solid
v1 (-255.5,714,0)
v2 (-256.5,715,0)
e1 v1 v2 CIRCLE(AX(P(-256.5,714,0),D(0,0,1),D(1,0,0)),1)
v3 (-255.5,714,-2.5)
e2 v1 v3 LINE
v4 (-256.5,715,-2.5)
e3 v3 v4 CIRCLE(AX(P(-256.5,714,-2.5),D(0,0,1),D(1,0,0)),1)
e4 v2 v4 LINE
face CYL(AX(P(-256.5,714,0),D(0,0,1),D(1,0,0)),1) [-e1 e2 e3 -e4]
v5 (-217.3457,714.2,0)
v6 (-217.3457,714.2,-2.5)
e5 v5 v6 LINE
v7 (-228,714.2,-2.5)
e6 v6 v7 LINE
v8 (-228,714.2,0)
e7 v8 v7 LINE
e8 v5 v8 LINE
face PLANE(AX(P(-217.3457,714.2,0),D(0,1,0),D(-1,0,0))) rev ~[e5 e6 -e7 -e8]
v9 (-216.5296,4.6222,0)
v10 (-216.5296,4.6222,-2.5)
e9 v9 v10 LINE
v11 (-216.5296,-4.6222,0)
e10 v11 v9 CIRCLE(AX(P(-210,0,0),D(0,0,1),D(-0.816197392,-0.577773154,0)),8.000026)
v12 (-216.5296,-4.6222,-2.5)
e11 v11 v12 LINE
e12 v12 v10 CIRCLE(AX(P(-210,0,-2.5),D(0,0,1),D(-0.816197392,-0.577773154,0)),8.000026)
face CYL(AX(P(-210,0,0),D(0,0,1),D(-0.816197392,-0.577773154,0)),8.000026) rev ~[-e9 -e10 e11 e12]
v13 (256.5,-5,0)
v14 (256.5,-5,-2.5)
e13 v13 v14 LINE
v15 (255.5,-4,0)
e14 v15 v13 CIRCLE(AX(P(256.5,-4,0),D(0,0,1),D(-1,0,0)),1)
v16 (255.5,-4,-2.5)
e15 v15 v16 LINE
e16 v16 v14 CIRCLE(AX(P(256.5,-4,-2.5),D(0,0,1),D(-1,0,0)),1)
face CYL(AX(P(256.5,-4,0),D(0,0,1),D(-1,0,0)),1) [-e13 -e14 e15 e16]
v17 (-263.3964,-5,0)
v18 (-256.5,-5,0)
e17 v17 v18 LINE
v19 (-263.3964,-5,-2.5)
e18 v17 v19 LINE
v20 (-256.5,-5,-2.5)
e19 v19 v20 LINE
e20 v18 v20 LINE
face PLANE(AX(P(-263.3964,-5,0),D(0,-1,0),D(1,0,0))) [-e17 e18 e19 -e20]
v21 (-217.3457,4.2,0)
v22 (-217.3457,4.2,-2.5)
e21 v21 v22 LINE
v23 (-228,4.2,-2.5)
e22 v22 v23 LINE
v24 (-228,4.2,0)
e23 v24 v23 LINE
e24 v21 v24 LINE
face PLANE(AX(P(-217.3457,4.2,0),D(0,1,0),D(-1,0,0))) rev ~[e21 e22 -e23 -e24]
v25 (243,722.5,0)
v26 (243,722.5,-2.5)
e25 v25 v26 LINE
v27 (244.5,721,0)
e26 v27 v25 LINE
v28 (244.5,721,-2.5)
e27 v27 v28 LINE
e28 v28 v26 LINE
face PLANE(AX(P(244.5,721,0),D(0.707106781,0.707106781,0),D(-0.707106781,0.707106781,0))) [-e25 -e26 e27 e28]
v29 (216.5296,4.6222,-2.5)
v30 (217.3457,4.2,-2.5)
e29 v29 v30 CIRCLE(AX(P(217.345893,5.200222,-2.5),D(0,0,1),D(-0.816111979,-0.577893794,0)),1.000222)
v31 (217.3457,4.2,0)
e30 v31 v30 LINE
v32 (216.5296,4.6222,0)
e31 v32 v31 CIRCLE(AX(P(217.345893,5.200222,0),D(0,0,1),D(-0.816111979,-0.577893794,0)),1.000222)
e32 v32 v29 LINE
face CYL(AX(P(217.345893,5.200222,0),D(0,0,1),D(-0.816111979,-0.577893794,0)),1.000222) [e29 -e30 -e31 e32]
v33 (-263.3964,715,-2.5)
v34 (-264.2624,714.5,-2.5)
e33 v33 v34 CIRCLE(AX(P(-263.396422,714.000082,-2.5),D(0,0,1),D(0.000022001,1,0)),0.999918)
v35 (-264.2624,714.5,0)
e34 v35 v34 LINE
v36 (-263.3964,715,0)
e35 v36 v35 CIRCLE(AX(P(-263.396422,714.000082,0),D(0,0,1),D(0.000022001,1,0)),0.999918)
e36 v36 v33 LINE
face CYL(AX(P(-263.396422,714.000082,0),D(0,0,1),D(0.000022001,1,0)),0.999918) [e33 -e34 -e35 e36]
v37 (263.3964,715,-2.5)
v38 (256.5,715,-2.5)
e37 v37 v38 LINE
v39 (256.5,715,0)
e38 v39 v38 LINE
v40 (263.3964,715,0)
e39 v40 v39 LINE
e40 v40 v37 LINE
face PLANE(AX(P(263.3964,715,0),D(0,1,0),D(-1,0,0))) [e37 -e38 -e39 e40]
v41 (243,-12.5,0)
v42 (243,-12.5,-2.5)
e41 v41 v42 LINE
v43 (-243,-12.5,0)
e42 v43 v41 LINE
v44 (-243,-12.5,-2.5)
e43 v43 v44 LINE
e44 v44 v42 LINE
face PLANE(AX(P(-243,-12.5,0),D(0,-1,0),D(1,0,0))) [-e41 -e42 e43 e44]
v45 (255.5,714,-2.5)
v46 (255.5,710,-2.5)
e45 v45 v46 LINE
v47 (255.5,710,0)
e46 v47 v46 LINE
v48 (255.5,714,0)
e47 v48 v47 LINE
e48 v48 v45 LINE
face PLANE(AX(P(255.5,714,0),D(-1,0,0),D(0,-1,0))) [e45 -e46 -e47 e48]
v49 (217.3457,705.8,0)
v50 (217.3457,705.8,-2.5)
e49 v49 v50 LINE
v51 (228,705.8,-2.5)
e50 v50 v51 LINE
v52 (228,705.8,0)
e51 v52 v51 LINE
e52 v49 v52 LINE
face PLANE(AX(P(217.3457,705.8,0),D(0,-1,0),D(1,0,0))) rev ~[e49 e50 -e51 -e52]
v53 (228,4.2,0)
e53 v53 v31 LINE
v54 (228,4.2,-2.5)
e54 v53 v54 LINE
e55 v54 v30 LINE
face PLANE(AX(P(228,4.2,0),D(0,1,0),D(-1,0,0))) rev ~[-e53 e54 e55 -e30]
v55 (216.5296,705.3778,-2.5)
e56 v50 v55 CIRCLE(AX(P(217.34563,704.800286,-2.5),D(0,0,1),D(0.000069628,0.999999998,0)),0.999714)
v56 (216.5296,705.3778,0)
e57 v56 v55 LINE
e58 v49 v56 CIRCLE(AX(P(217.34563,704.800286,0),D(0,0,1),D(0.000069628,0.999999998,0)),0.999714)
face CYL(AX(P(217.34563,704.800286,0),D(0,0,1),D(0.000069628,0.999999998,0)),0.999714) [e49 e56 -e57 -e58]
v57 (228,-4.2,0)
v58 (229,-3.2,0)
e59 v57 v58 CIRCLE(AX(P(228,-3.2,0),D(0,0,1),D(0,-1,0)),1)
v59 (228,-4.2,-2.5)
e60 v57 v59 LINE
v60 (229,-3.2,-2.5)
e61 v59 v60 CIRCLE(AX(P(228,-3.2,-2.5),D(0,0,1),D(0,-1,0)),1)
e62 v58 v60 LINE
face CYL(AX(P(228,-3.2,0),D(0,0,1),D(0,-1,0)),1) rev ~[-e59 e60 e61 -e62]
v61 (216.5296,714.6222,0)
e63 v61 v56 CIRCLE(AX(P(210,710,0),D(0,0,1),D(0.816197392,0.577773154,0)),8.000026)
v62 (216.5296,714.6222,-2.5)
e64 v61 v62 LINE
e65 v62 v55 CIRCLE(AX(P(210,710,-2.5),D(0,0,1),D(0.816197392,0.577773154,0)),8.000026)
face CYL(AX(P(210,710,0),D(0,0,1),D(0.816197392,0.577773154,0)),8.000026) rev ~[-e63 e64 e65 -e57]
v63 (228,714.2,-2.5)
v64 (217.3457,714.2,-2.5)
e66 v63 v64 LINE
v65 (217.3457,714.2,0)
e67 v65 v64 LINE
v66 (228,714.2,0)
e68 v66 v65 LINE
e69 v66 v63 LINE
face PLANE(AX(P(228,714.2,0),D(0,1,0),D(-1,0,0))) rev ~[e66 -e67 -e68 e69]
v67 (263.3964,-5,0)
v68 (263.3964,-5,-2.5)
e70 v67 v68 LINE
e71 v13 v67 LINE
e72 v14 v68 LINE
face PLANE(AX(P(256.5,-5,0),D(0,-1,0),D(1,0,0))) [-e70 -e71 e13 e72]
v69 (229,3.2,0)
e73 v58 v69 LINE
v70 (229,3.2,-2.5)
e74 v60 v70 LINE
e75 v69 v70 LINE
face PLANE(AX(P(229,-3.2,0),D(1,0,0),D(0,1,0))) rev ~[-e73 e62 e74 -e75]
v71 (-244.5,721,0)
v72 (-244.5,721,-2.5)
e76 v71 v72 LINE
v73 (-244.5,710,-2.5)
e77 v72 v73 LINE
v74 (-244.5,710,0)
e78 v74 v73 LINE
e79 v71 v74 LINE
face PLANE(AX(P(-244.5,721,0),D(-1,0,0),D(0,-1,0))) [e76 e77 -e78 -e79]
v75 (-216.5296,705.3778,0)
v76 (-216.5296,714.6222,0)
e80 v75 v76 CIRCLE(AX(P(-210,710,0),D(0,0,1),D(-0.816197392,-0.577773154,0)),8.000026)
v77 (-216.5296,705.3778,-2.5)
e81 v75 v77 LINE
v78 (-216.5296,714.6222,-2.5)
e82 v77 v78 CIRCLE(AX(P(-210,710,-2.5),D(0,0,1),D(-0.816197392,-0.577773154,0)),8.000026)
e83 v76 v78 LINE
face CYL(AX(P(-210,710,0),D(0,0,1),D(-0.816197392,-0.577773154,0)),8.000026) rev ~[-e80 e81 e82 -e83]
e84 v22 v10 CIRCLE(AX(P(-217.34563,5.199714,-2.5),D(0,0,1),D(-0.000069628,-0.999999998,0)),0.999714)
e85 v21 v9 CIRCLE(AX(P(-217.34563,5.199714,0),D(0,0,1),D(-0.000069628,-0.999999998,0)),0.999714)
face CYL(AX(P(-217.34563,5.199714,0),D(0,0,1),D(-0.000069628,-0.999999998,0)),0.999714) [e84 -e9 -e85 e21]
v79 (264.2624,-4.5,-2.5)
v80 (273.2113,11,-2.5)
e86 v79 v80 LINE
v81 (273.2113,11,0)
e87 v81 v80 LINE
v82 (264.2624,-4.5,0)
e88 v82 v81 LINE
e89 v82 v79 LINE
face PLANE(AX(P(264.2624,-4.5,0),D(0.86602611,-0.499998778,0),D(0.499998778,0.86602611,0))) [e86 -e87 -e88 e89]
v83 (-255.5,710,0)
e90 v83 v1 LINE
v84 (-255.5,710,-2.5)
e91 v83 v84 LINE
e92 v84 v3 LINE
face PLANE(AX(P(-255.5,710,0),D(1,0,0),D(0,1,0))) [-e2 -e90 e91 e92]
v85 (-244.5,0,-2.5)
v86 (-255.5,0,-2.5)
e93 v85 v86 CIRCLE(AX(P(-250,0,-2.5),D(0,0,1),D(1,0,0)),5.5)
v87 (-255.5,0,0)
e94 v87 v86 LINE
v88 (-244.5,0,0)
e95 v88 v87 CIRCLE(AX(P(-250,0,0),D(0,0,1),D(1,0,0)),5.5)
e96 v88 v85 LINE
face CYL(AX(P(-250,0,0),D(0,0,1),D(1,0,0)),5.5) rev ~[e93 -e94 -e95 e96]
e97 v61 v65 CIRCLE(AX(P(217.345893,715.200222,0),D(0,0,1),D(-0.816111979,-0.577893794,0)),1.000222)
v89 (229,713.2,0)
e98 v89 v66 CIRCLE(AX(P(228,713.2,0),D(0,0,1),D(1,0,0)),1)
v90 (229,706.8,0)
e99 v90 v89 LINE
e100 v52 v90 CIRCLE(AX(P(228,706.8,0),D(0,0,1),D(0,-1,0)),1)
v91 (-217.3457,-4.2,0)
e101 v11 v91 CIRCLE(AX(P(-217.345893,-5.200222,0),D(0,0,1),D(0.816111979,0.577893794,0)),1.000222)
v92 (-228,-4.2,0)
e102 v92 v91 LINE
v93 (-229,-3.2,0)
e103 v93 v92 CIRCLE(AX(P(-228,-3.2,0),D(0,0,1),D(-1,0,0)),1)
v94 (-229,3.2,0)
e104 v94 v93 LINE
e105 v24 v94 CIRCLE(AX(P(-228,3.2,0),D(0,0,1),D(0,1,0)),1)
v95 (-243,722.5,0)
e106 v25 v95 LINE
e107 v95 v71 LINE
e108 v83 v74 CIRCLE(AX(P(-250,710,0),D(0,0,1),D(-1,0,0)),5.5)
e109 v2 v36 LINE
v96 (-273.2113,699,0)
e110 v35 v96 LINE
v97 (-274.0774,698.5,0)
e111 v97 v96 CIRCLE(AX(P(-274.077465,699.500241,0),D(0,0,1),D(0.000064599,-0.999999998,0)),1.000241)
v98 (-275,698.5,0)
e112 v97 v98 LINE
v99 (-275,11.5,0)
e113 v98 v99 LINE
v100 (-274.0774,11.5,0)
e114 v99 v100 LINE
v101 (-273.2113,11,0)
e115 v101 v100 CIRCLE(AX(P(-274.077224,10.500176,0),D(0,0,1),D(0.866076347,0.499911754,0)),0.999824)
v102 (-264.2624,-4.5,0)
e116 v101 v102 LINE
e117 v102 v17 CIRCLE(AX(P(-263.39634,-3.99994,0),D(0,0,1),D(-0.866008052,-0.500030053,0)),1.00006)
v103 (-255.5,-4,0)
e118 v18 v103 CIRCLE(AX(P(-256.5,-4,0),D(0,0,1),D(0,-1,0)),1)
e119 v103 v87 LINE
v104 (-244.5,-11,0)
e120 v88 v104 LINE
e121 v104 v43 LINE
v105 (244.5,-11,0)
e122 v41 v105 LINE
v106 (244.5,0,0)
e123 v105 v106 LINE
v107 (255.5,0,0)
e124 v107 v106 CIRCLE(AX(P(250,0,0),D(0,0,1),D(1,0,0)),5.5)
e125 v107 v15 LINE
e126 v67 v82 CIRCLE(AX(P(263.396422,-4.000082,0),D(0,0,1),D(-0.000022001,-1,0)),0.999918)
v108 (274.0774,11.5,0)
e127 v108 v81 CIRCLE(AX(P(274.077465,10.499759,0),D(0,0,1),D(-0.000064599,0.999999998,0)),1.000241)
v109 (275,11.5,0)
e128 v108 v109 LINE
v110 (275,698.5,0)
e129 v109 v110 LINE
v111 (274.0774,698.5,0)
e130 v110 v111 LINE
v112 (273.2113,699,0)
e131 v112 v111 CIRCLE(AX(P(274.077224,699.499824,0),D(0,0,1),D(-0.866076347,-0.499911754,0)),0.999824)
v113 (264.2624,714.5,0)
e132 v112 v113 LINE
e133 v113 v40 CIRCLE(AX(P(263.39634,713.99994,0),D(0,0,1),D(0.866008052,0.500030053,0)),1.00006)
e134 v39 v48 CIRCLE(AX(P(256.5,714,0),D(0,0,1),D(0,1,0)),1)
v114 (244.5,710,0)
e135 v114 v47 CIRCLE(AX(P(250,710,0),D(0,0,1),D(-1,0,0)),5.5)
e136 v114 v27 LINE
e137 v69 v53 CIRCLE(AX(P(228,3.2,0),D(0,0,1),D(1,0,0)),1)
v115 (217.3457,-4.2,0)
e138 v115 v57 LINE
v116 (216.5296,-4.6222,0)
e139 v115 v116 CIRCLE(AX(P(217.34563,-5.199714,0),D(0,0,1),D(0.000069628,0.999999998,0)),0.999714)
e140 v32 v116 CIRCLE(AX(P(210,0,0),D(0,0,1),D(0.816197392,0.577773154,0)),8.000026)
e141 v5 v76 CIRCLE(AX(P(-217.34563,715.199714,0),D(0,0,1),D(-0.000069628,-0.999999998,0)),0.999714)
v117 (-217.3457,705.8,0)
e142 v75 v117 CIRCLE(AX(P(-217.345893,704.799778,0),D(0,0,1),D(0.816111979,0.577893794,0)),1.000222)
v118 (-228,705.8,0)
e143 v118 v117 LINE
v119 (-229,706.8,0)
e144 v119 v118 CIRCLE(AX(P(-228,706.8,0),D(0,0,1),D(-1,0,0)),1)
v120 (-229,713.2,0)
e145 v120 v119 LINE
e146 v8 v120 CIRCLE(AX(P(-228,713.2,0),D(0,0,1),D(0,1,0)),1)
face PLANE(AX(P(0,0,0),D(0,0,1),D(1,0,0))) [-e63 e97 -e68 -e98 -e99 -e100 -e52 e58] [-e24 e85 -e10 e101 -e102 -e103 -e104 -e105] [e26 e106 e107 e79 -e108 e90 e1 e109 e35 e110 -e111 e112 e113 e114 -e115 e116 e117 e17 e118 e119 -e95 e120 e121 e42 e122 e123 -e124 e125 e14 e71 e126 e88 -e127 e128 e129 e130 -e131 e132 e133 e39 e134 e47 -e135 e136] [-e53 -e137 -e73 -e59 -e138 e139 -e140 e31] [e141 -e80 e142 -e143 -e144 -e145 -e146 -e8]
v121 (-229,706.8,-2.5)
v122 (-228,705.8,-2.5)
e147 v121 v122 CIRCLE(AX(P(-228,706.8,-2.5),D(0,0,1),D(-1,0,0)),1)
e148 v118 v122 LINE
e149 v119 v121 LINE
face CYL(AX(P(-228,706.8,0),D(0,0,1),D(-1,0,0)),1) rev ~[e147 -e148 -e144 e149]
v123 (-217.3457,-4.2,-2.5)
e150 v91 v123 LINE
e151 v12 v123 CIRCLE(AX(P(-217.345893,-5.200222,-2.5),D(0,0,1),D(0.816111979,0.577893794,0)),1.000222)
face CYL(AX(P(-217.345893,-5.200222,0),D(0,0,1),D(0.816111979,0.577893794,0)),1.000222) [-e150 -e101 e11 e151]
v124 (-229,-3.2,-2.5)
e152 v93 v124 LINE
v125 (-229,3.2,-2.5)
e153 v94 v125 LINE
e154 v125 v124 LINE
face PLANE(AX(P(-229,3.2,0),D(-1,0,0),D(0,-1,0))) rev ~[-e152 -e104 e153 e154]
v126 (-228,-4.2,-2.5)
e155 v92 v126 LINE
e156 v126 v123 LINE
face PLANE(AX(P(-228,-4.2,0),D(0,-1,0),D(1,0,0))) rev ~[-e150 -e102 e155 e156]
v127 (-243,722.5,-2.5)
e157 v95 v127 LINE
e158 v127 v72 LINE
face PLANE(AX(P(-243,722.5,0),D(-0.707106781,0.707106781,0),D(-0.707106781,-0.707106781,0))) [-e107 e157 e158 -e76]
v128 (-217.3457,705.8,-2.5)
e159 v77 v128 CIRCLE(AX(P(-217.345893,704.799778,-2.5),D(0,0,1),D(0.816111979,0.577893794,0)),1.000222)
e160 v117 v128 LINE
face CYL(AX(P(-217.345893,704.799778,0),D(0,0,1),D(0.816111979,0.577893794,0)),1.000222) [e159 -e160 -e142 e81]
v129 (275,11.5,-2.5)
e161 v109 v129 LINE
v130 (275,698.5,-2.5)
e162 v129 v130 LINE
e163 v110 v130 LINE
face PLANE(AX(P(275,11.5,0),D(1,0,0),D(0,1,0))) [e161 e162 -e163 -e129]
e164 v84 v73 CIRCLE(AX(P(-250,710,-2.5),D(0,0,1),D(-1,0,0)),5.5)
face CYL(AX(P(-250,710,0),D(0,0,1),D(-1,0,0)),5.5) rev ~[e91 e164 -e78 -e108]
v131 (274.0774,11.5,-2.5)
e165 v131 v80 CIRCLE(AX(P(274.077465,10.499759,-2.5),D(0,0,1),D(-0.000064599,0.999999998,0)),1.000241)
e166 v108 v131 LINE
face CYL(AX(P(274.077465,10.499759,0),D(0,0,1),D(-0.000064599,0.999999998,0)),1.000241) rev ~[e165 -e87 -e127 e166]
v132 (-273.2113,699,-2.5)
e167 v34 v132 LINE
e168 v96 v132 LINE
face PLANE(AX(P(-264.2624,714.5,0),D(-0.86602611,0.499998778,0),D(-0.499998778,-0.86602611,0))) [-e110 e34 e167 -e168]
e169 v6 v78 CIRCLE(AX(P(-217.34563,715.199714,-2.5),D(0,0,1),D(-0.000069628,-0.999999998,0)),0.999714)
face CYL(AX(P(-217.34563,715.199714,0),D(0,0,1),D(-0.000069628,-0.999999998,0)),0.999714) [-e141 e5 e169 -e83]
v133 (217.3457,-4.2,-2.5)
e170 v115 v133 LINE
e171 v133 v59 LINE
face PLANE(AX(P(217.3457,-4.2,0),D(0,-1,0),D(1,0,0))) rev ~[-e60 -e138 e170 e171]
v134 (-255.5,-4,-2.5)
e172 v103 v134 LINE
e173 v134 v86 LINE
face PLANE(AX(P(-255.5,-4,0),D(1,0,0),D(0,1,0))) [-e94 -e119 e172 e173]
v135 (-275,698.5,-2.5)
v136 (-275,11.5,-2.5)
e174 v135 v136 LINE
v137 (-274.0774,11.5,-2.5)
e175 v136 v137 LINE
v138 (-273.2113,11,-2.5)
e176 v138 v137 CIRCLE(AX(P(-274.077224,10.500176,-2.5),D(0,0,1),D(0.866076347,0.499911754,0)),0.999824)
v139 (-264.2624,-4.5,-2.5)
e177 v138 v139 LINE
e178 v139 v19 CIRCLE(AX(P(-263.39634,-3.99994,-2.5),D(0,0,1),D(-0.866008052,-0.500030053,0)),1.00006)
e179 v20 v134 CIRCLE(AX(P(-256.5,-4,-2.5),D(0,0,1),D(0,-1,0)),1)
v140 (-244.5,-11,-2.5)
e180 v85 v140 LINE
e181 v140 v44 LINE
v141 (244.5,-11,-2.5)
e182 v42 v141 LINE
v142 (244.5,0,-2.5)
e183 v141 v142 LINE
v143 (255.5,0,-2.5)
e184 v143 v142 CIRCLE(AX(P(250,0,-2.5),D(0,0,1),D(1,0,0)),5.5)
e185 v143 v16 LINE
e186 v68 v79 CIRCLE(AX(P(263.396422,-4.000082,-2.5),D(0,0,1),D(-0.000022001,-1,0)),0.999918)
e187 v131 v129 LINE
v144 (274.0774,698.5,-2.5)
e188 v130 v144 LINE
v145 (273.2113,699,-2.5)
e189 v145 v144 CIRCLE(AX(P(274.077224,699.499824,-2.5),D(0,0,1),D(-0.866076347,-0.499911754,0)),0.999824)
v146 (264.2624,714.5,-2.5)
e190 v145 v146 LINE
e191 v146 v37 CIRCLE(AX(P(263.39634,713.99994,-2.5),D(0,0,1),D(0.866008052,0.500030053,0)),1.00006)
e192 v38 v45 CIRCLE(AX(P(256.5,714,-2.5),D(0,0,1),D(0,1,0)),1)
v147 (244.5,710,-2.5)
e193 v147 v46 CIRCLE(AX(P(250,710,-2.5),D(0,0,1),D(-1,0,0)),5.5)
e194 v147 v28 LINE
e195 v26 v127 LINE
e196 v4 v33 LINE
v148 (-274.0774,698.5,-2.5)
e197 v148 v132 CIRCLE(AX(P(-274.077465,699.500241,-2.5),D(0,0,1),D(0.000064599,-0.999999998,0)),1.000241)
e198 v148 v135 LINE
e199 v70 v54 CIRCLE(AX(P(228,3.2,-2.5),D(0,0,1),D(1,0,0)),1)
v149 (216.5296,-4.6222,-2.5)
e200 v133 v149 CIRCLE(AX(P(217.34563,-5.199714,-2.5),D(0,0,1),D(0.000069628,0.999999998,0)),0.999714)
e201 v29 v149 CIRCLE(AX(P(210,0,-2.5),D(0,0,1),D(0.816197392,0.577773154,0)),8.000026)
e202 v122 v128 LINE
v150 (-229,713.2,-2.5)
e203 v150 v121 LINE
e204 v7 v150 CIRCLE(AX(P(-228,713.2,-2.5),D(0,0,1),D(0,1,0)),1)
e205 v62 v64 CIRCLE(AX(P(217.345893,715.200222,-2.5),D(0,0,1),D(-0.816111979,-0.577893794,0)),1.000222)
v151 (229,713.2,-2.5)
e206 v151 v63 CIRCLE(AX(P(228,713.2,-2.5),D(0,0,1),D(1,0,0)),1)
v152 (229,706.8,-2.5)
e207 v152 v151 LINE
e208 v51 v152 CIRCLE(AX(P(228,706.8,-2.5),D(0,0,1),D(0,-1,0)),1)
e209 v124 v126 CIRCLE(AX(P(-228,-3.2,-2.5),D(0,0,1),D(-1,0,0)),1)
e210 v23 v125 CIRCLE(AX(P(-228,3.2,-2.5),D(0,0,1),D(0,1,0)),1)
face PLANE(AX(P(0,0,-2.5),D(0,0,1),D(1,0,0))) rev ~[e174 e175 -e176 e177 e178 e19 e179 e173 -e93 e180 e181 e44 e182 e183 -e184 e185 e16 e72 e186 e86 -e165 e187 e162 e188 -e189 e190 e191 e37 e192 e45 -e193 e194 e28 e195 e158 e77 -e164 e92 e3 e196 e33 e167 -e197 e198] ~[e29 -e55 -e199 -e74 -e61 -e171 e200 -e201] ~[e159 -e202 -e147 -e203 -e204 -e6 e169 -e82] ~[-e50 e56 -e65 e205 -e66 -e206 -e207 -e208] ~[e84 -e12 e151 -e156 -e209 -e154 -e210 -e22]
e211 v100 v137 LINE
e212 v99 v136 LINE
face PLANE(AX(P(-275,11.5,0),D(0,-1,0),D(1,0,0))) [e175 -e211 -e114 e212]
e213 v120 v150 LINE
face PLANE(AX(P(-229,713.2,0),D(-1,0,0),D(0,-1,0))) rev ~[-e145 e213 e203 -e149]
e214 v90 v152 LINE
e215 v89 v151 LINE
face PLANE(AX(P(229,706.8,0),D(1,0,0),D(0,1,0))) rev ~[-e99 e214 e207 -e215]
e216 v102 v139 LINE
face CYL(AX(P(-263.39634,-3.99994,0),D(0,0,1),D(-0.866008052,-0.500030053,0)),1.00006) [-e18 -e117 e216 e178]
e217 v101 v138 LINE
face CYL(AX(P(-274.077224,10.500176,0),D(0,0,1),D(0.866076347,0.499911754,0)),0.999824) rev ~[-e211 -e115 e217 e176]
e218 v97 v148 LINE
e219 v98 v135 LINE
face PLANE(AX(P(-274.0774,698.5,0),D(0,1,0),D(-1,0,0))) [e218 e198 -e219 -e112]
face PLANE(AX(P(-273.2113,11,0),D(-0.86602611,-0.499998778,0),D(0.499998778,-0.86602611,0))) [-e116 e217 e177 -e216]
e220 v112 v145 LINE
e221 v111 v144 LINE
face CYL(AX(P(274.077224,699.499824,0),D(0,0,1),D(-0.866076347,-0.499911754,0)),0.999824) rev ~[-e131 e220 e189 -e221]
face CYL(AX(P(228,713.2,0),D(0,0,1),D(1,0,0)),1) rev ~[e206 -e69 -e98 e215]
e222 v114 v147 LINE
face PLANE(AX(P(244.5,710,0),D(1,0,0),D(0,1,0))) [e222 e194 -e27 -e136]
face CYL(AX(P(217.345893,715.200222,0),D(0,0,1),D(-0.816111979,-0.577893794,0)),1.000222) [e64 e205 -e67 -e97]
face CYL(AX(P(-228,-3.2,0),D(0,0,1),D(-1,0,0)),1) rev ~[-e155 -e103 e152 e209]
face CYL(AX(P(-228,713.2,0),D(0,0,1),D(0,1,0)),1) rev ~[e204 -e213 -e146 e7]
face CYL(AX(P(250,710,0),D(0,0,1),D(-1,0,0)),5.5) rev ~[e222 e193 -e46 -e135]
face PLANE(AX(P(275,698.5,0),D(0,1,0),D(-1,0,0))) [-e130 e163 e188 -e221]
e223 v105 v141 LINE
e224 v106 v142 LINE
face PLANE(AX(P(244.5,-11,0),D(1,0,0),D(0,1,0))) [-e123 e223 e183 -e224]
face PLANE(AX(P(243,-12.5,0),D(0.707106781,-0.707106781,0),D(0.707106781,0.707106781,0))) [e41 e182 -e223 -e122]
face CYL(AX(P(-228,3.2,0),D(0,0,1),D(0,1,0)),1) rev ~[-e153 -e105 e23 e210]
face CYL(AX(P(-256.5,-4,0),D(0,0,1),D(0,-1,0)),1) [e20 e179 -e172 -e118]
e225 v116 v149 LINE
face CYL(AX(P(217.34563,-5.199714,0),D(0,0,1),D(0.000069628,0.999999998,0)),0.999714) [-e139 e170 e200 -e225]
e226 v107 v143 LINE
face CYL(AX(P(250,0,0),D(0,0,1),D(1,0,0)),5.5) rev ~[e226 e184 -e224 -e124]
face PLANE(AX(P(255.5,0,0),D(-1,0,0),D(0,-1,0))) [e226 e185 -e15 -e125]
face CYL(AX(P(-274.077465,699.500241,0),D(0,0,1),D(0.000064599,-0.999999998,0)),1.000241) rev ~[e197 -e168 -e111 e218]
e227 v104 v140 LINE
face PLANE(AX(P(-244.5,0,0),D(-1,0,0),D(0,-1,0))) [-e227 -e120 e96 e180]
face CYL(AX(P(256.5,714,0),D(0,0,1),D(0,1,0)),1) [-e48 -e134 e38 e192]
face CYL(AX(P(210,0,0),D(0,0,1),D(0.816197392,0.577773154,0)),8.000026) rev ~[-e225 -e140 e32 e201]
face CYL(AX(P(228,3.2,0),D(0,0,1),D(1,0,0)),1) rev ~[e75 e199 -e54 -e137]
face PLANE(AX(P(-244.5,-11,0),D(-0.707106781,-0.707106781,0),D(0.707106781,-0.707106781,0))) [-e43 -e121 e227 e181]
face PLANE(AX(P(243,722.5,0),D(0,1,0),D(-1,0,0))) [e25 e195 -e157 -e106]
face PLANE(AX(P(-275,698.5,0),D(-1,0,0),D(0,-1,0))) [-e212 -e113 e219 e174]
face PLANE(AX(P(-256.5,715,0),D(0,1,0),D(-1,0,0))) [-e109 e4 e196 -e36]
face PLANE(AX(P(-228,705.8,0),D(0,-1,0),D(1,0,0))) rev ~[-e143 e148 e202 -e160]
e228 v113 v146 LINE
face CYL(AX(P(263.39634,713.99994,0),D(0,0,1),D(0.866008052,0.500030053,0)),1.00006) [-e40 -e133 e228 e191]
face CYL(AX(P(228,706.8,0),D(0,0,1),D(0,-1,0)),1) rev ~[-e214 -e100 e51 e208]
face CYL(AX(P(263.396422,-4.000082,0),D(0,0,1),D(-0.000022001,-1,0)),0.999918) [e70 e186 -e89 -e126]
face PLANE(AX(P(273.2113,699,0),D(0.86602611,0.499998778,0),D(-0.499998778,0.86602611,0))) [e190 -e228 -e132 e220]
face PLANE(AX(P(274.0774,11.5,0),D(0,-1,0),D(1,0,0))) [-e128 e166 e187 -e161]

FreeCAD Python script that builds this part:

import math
import FreeCAD as App
import Part
import Sketcher
from FreeCAD import Vector
Q = App.Units.Quantity

doc = App.newDocument("Part")
body = doc.addObject("PartDesign::Body", "Body")

# Sketch on XY plane
sketch1 = body.newObject("Sketcher::SketchObject", "Sketch")
sketch1.AttachmentSupport = (doc.getObject("XY_Plane"), [""])
sketch1.MapMode = "FlatFace"
sketch1.addGeometry(Part.LineSegment(Vector(-274.1, 698.5, 0), Vector(-275, 698.5, 0)), False)
sketch1.addGeometry(Part.LineSegment(Vector(-275, 698.5, 0), Vector(-275, 11.5, 0)), False)
sketch1.addGeometry(Part.LineSegment(Vector(-275, 11.5, 0), Vector(-274.1, 11.5, 0)), False)
sketch1.addGeometry(Part.ArcOfCircle(Part.Circle(Vector(-274.1, 10.5, 0), Vector(0, 0, 1), 1), math.radians(30), math.radians(90)), False)
sketch1.addGeometry(Part.LineSegment(Vector(-273.2, 11, 0), Vector(-264.3, -4.5, 0)), False)
sketch1.addGeometry(Part.ArcOfCircle(Part.Circle(Vector(-263.4, -4, 0), Vector(0, 0, 1), 1), math.radians(-150), math.radians(-90)), False)
sketch1.addGeometry(Part.LineSegment(Vector(-263.4, -5, 0), Vector(-256.5, -5, 0)), False)
sketch1.addGeometry(Part.ArcOfCircle(Part.Circle(Vector(-256.5, -4, 0), Vector(0, 0, 1), 1), math.radians(-90), math.radians(0)), False)
sketch1.addGeometry(Part.LineSegment(Vector(-255.5, -4, 0), Vector(-255.5, 0, 0)), False)
sketch1.addGeometry(Part.ArcOfCircle(Part.Circle(Vector(-250, 0, 0), Vector(0, 0, 1), 5.5), math.radians(0), math.radians(180)), False)
sketch1.addGeometry(Part.LineSegment(Vector(-244.5, 0, 0), Vector(-244.5, -11, 0)), False)
sketch1.addGeometry(Part.LineSegment(Vector(-244.5, -11, 0), Vector(-243, -12.5, 0)), False)
sketch1.addGeometry(Part.LineSegment(Vector(-243, -12.5, 0), Vector(243, -12.5, 0)), False)
sketch1.addGeometry(Part.LineSegment(Vector(243, -12.5, 0), Vector(244.5, -11, 0)), False)
sketch1.addGeometry(Part.LineSegment(Vector(244.5, -11, 0), Vector(244.5, 0, 0)), False)
sketch1.addGeometry(Part.ArcOfCircle(Part.Circle(Vector(250, 0, 0), Vector(0, 0, 1), 5.5), math.radians(0), math.radians(180)), False)
sketch1.addGeometry(Part.LineSegment(Vector(255.5, 0, 0), Vector(255.5, -4, 0)), False)
sketch1.addGeometry(Part.ArcOfCircle(Part.Circle(Vector(256.5, -4, 0), Vector(0, 0, 1), 1), math.radians(180), math.radians(270)), False)
sketch1.addGeometry(Part.LineSegment(Vector(256.5, -5, 0), Vector(263.4, -5, 0)), False)
sketch1.addGeometry(Part.ArcOfCircle(Part.Circle(Vector(263.4, -4, 0), Vector(0, 0, 1), 1), math.radians(-90), math.radians(-30)), False)
sketch1.addGeometry(Part.LineSegment(Vector(264.3, -4.5, 0), Vector(273.2, 11, 0)), False)
sketch1.addGeometry(Part.ArcOfCircle(Part.Circle(Vector(274.1, 10.5, 0), Vector(0, 0, 1), 1), math.radians(90), math.radians(150)), False)
sketch1.addGeometry(Part.LineSegment(Vector(274.1, 11.5, 0), Vector(275, 11.5, 0)), False)
sketch1.addGeometry(Part.LineSegment(Vector(275, 11.5, 0), Vector(275, 698.5, 0)), False)
sketch1.addGeometry(Part.LineSegment(Vector(275, 698.5, 0), Vector(274.1, 698.5, 0)), False)
sketch1.addGeometry(Part.ArcOfCircle(Part.Circle(Vector(274.1, 699.5, 0), Vector(0, 0, 1), 1), math.radians(-150), math.radians(-90)), False)
sketch1.addGeometry(Part.LineSegment(Vector(273.2, 699, 0), Vector(264.3, 714.5, 0)), False)
sketch1.addGeometry(Part.ArcOfCircle(Part.Circle(Vector(263.4, 714, 0), Vector(0, 0, 1), 1), math.radians(30), math.radians(90)), False)
sketch1.addGeometry(Part.LineSegment(Vector(263.4, 715, 0), Vector(256.5, 715, 0)), False)
sketch1.addGeometry(Part.ArcOfCircle(Part.Circle(Vector(256.5, 714, 0), Vector(0, 0, 1), 1), math.radians(90), math.radians(180)), False)
sketch1.addGeometry(Part.LineSegment(Vector(255.5, 714, 0), Vector(255.5, 710, 0)), False)
sketch1.addGeometry(Part.ArcOfCircle(Part.Circle(Vector(250, 710, 0), Vector(0, 0, 1), 5.5), math.radians(180), math.radians(360)), False)
sketch1.addGeometry(Part.LineSegment(Vector(244.5, 710, 0), Vector(244.5, 721, 0)), False)
sketch1.addGeometry(Part.LineSegment(Vector(244.5, 721, 0), Vector(243, 722.5, 0)), False)
sketch1.addGeometry(Part.LineSegment(Vector(243, 722.5, 0), Vector(-243, 722.5, 0)), False)
sketch1.addGeometry(Part.LineSegment(Vector(-243, 722.5, 0), Vector(-244.5, 721, 0)), False)
sketch1.addGeometry(Part.LineSegment(Vector(-244.5, 721, 0), Vector(-244.5, 710, 0)), False)
sketch1.addGeometry(Part.ArcOfCircle(Part.Circle(Vector(-250, 710, 0), Vector(0, 0, 1), 5.5), math.radians(180), math.radians(360)), False)
sketch1.addGeometry(Part.LineSegment(Vector(-255.5, 710, 0), Vector(-255.5, 714, 0)), False)
sketch1.addGeometry(Part.ArcOfCircle(Part.Circle(Vector(-256.5, 714, 0), Vector(0, 0, 1), 1), math.radians(0), math.radians(90)), False)
sketch1.addGeometry(Part.LineSegment(Vector(-256.5, 715, 0), Vector(-263.4, 715, 0)), False)
sketch1.addGeometry(Part.ArcOfCircle(Part.Circle(Vector(-263.4, 714, 0), Vector(0, 0, 1), 1), math.radians(90), math.radians(150)), False)
sketch1.addGeometry(Part.LineSegment(Vector(-264.3, 714.5, 0), Vector(-273.2, 699, 0)), False)
sketch1.addGeometry(Part.ArcOfCircle(Part.Circle(Vector(-274.1, 699.5, 0), Vector(0, 0, 1), 1), math.radians(-90), math.radians(-30)), False)
sketch1.addGeometry(Part.LineSegment(Vector(-229, -3.2, 0), Vector(-229, 3.2, 0)), False)
sketch1.addGeometry(Part.ArcOfCircle(Part.Circle(Vector(-228, 3.2, 0), Vector(0, 0, 1), 1), math.radians(90), math.radians(180)), False)
sketch1.addGeometry(Part.LineSegment(Vector(-228, 4.2, 0), Vector(-217.3, 4.2, 0)), False)
sketch1.addGeometry(Part.ArcOfCircle(Part.Circle(Vector(-217.3, 5.2, 0), Vector(0, 0, 1), 1), math.radians(-90), math.radians(-35)), False)
sketch1.addGeometry(Part.ArcOfCircle(Part.Circle(Vector(-210, 0, 0), Vector(0, 0, 1), 8), math.radians(-145), math.radians(145)), False)
sketch1.addGeometry(Part.ArcOfCircle(Part.Circle(Vector(-217.3, -5.2, 0), Vector(0, 0, 1), 1), math.radians(35), math.radians(90)), False)
sketch1.addGeometry(Part.LineSegment(Vector(-217.3, -4.2, 0), Vector(-228, -4.2, 0)), False)
sketch1.addGeometry(Part.ArcOfCircle(Part.Circle(Vector(-228, -3.2, 0), Vector(0, 0, 1), 1), math.radians(180), math.radians(270)), False)
sketch1.addGeometry(Part.ArcOfCircle(Part.Circle(Vector(210, 0, 0), Vector(0, 0, 1), 8), math.radians(35), math.radians(325)), False)
sketch1.addGeometry(Part.ArcOfCircle(Part.Circle(Vector(217.3, 5.2, 0), Vector(0, 0, 1), 1), math.radians(-145), math.radians(-90)), False)
sketch1.addGeometry(Part.LineSegment(Vector(217.3, 4.2, 0), Vector(228, 4.2, 0)), False)
sketch1.addGeometry(Part.ArcOfCircle(Part.Circle(Vector(228, 3.2, 0), Vector(0, 0, 1), 1), math.radians(0), math.radians(90)), False)
sketch1.addGeometry(Part.LineSegment(Vector(229, 3.2, 0), Vector(229, -3.2, 0)), False)
sketch1.addGeometry(Part.ArcOfCircle(Part.Circle(Vector(228, -3.2, 0), Vector(0, 0, 1), 1), math.radians(-90), math.radians(0)), False)
sketch1.addGeometry(Part.LineSegment(Vector(228, -4.2, 0), Vector(217.3, -4.2, 0)), False)
sketch1.addGeometry(Part.ArcOfCircle(Part.Circle(Vector(217.3, -5.2, 0), Vector(0, 0, 1), 1), math.radians(90), math.radians(145)), False)
sketch1.addGeometry(Part.ArcOfCircle(Part.Circle(Vector(-228, 706.8, 0), Vector(0, 0, 1), 1), math.radians(180), math.radians(270)), False)
sketch1.addGeometry(Part.LineSegment(Vector(-229, 706.8, 0), Vector(-229, 713.2, 0)), False)
sketch1.addGeometry(Part.ArcOfCircle(Part.Circle(Vector(-228, 713.2, 0), Vector(0, 0, 1), 1), math.radians(90), math.radians(180)), False)
sketch1.addGeometry(Part.LineSegment(Vector(-228, 714.2, 0), Vector(-217.3, 714.2, 0)), False)
sketch1.addGeometry(Part.ArcOfCircle(Part.Circle(Vector(-217.3, 715.2, 0), Vector(0, 0, 1), 1), math.radians(-90), math.radians(-35)), False)
sketch1.addGeometry(Part.ArcOfCircle(Part.Circle(Vector(-210, 710, 0), Vector(0, 0, 1), 8), math.radians(-145), math.radians(145)), False)
sketch1.addGeometry(Part.ArcOfCircle(Part.Circle(Vector(-217.3, 704.8, 0), Vector(0, 0, 1), 1), math.radians(35), math.radians(90)), False)
sketch1.addGeometry(Part.LineSegment(Vector(-217.3, 705.8, 0), Vector(-228, 705.8, 0)), False)
sketch1.addGeometry(Part.ArcOfCircle(Part.Circle(Vector(210, 710, 0), Vector(0, 0, 1), 8), math.radians(35), math.radians(325)), False)
sketch1.addGeometry(Part.ArcOfCircle(Part.Circle(Vector(217.3, 715.2, 0), Vector(0, 0, 1), 1), math.radians(-145), math.radians(-90)), False)
sketch1.addGeometry(Part.LineSegment(Vector(217.3, 714.2, 0), Vector(228, 714.2, 0)), False)
sketch1.addGeometry(Part.ArcOfCircle(Part.Circle(Vector(228, 713.2, 0), Vector(0, 0, 1), 1), math.radians(0), math.radians(90)), False)
sketch1.addGeometry(Part.LineSegment(Vector(229, 713.2, 0), Vector(229, 706.8, 0)), False)
sketch1.addGeometry(Part.ArcOfCircle(Part.Circle(Vector(228, 706.8, 0), Vector(0, 0, 1), 1), math.radians(-90), math.radians(0)), False)
sketch1.addGeometry(Part.LineSegment(Vector(228, 705.8, 0), Vector(217.3, 705.8, 0)), False)
sketch1.addGeometry(Part.ArcOfCircle(Part.Circle(Vector(217.3, 704.8, 0), Vector(0, 0, 1), 1), math.radians(90), math.radians(145)), False)
sketch1.addConstraint(Sketcher.Constraint("Coincident", 0, 2, 1, 1))
sketch1.addConstraint(Sketcher.Constraint("Coincident", 1, 2, 2, 1))
sketch1.addConstraint(Sketcher.Constraint("Tangent", 2, 2, 3, 2))
sketch1.addConstraint(Sketcher.Constraint("Tangent", 3, 1, 4, 1))
sketch1.addConstraint(Sketcher.Constraint("Tangent", 4, 2, 5, 1))
sketch1.addConstraint(Sketcher.Constraint("Tangent", 5, 2, 6, 1))
sketch1.addConstraint(Sketcher.Constraint("Tangent", 6, 2, 7, 1))
sketch1.addConstraint(Sketcher.Constraint("Tangent", 7, 2, 8, 1))
sketch1.addConstraint(Sketcher.Constraint("Tangent", 8, 2, 9, 2))
sketch1.addConstraint(Sketcher.Constraint("Tangent", 9, 1, 10, 1))
sketch1.addConstraint(Sketcher.Constraint("Coincident", 10, 2, 11, 1))
sketch1.addConstraint(Sketcher.Constraint("Coincident", 11, 2, 12, 1))
sketch1.addConstraint(Sketcher.Constraint("Coincident", 12, 2, 13, 1))
sketch1.addConstraint(Sketcher.Constraint("Coincident", 13, 2, 14, 1))
sketch1.addConstraint(Sketcher.Constraint("Tangent", 14, 2, 15, 2))
sketch1.addConstraint(Sketcher.Constraint("Tangent", 15, 1, 16, 1))
sketch1.addConstraint(Sketcher.Constraint("Tangent", 16, 2, 17, 1))
sketch1.addConstraint(Sketcher.Constraint("Tangent", 17, 2, 18, 1))
sketch1.addConstraint(Sketcher.Constraint("Tangent", 18, 2, 19, 1))
sketch1.addConstraint(Sketcher.Constraint("Tangent", 19, 2, 20, 1))
sketch1.addConstraint(Sketcher.Constraint("Tangent", 20, 2, 21, 2))
sketch1.addConstraint(Sketcher.Constraint("Tangent", 21, 1, 22, 1))
sketch1.addConstraint(Sketcher.Constraint("Coincident", 22, 2, 23, 1))
sketch1.addConstraint(Sketcher.Constraint("Coincident", 23, 2, 24, 1))
sketch1.addConstraint(Sketcher.Constraint("Tangent", 24, 2, 25, 2))
sketch1.addConstraint(Sketcher.Constraint("Tangent", 25, 1, 26, 1))
sketch1.addConstraint(Sketcher.Constraint("Tangent", 26, 2, 27, 1))
sketch1.addConstraint(Sketcher.Constraint("Tangent", 27, 2, 28, 1))
sketch1.addConstraint(Sketcher.Constraint("Tangent", 28, 2, 29, 1))
sketch1.addConstraint(Sketcher.Constraint("Tangent", 29, 2, 30, 1))
sketch1.addConstraint(Sketcher.Constraint("Tangent", 30, 2, 31, 2))
sketch1.addConstraint(Sketcher.Constraint("Tangent", 31, 1, 32, 1))
sketch1.addConstraint(Sketcher.Constraint("Coincident", 32, 2, 33, 1))
sketch1.addConstraint(Sketcher.Constraint("Coincident", 33, 2, 34, 1))
sketch1.addConstraint(Sketcher.Constraint("Coincident", 34, 2, 35, 1))
sketch1.addConstraint(Sketcher.Constraint("Coincident", 35, 2, 36, 1))
sketch1.addConstraint(Sketcher.Constraint("Tangent", 36, 2, 37, 2))
sketch1.addConstraint(Sketcher.Constraint("Tangent", 37, 1, 38, 1))
sketch1.addConstraint(Sketcher.Constraint("Tangent", 38, 2, 39, 1))
sketch1.addConstraint(Sketcher.Constraint("Tangent", 39, 2, 40, 1))
sketch1.addConstraint(Sketcher.Constraint("Tangent", 40, 2, 41, 1))
sketch1.addConstraint(Sketcher.Constraint("Tangent", 41, 2, 42, 1))
sketch1.addConstraint(Sketcher.Constraint("Tangent", 42, 2, 43, 2))
sketch1.addConstraint(Sketcher.Constraint("Tangent", 43, 1, 0, 1))
sketch1.addConstraint(Sketcher.Constraint("Tangent", 44, 2, 45, 2))
sketch1.addConstraint(Sketcher.Constraint("Tangent", 45, 1, 46, 1))
sketch1.addConstraint(Sketcher.Constraint("Tangent", 46, 2, 47, 1))
sketch1.addConstraint(Sketcher.Constraint("Tangent", 47, 2, 48, 2))
sketch1.addConstraint(Sketcher.Constraint("Tangent", 48, 1, 49, 1))
sketch1.addConstraint(Sketcher.Constraint("Tangent", 49, 2, 50, 1))
sketch1.addConstraint(Sketcher.Constraint("Tangent", 50, 2, 51, 2))
sketch1.addConstraint(Sketcher.Constraint("Tangent", 51, 1, 44, 1))
sketch1.addConstraint(Sketcher.Constraint("Tangent", 52, 1, 53, 1))
sketch1.addConstraint(Sketcher.Constraint("Tangent", 53, 2, 54, 1))
sketch1.addConstraint(Sketcher.Constraint("Tangent", 54, 2, 55, 2))
sketch1.addConstraint(Sketcher.Constraint("Tangent", 55, 1, 56, 1))
sketch1.addConstraint(Sketcher.Constraint("Tangent", 56, 2, 57, 2))
sketch1.addConstraint(Sketcher.Constraint("Tangent", 57, 1, 58, 1))
sketch1.addConstraint(Sketcher.Constraint("Tangent", 58, 2, 59, 1))
sketch1.addConstraint(Sketcher.Constraint("Tangent", 59, 2, 52, 2))
sketch1.addConstraint(Sketcher.Constraint("Tangent", 60, 1, 61, 1))
sketch1.addConstraint(Sketcher.Constraint("Tangent", 61, 2, 62, 2))
sketch1.addConstraint(Sketcher.Constraint("Tangent", 62, 1, 63, 1))
sketch1.addConstraint(Sketcher.Constraint("Tangent", 63, 2, 64, 1))
sketch1.addConstraint(Sketcher.Constraint("Tangent", 64, 2, 65, 2))
sketch1.addConstraint(Sketcher.Constraint("Tangent", 65, 1, 66, 1))
sketch1.addConstraint(Sketcher.Constraint("Tangent", 66, 2, 67, 1))
sketch1.addConstraint(Sketcher.Constraint("Tangent", 67, 2, 60, 2))
sketch1.addConstraint(Sketcher.Constraint("Tangent", 68, 1, 69, 1))
sketch1.addConstraint(Sketcher.Constraint("Tangent", 69, 2, 70, 1))
sketch1.addConstraint(Sketcher.Constraint("Tangent", 70, 2, 71, 2))
sketch1.addConstraint(Sketcher.Constraint("Tangent", 71, 1, 72, 1))
sketch1.addConstraint(Sketcher.Constraint("Tangent", 72, 2, 73, 2))
sketch1.addConstraint(Sketcher.Constraint("Tangent", 73, 1, 74, 1))
sketch1.addConstraint(Sketcher.Constraint("Tangent", 74, 2, 75, 1))
sketch1.addConstraint(Sketcher.Constraint("Tangent", 75, 2, 68, 2))
sketch1.addConstraint(Sketcher.Constraint("Horizontal", 0))
sketch1.addConstraint(Sketcher.Constraint("Vertical", 1))
sketch1.addConstraint(Sketcher.Constraint("Horizontal", 2))
sketch1.addConstraint(Sketcher.Constraint("Horizontal", 6))
sketch1.addConstraint(Sketcher.Constraint("Vertical", 8))
sketch1.addConstraint(Sketcher.Constraint("Vertical", 10))
sketch1.addConstraint(Sketcher.Constraint("Horizontal", 12))
sketch1.addConstraint(Sketcher.Constraint("Vertical", 14))
sketch1.addConstraint(Sketcher.Constraint("Vertical", 16))
sketch1.addConstraint(Sketcher.Constraint("Horizontal", 18))
sketch1.addConstraint(Sketcher.Constraint("Horizontal", 22))
sketch1.addConstraint(Sketcher.Constraint("Vertical", 23))
sketch1.addConstraint(Sketcher.Constraint("Horizontal", 24))
sketch1.addConstraint(Sketcher.Constraint("Horizontal", 28))
sketch1.addConstraint(Sketcher.Constraint("Vertical", 30))
sketch1.addConstraint(Sketcher.Constraint("Vertical", 32))
sketch1.addConstraint(Sketcher.Constraint("Horizontal", 34))
sketch1.addConstraint(Sketcher.Constraint("Vertical", 36))
sketch1.addConstraint(Sketcher.Constraint("Vertical", 38))
sketch1.addConstraint(Sketcher.Constraint("Horizontal", 40))
sketch1.addConstraint(Sketcher.Constraint("Vertical", 44))
sketch1.addConstraint(Sketcher.Constraint("Horizontal", 46))
sketch1.addConstraint(Sketcher.Constraint("Horizontal", 50))
sketch1.addConstraint(Sketcher.Constraint("Horizontal", 54))
sketch1.addConstraint(Sketcher.Constraint("Vertical", 56))
sketch1.addConstraint(Sketcher.Constraint("Horizontal", 58))
sketch1.addConstraint(Sketcher.Constraint("Vertical", 61))
sketch1.addConstraint(Sketcher.Constraint("Horizontal", 63))
sketch1.addConstraint(Sketcher.Constraint("Horizontal", 67))
sketch1.addConstraint(Sketcher.Constraint("Horizontal", 70))
sketch1.addConstraint(Sketcher.Constraint("Vertical", 72))
sketch1.addConstraint(Sketcher.Constraint("Horizontal", 74))
sketch1.addConstraint(Sketcher.Constraint("Equal", 3, 5))
sketch1.addConstraint(Sketcher.Constraint("Equal", 5, 7))
sketch1.addConstraint(Sketcher.Constraint("Equal", 9, 15))
sketch1.addConstraint(Sketcher.Constraint("Equal", 7, 17))
sketch1.addConstraint(Sketcher.Constraint("Equal", 17, 19))
sketch1.addConstraint(Sketcher.Constraint("Equal", 19, 21))
sketch1.addConstraint(Sketcher.Constraint("Equal", 21, 25))
sketch1.addConstraint(Sketcher.Constraint("Equal", 25, 27))
sketch1.addConstraint(Sketcher.Constraint("Equal", 27, 29))
sketch1.addConstraint(Sketcher.Constraint("Equal", 15, 31))
sketch1.addConstraint(Sketcher.Constraint("Equal", 31, 37))
sketch1.addConstraint(Sketcher.Constraint("Equal", 29, 39))
sketch1.addConstraint(Sketcher.Constraint("Equal", 39, 41))
sketch1.addConstraint(Sketcher.Constraint("Equal", 41, 43))
sketch1.addConstraint(Sketcher.Constraint("Equal", 43, 45))
sketch1.addConstraint(Sketcher.Constraint("Equal", 45, 47))
sketch1.addConstraint(Sketcher.Constraint("Equal", 47, 49))
sketch1.addConstraint(Sketcher.Constraint("Equal", 49, 51))
sketch1.addConstraint(Sketcher.Constraint("Equal", 48, 52))
sketch1.addConstraint(Sketcher.Constraint("Equal", 51, 53))
sketch1.addConstraint(Sketcher.Constraint("Equal", 53, 55))
sketch1.addConstraint(Sketcher.Constraint("Equal", 55, 57))
sketch1.addConstraint(Sketcher.Constraint("Equal", 57, 59))
sketch1.addConstraint(Sketcher.Constraint("Equal", 59, 60))
sketch1.addConstraint(Sketcher.Constraint("Equal", 60, 62))
sketch1.addConstraint(Sketcher.Constraint("Equal", 62, 64))
sketch1.addConstraint(Sketcher.Constraint("Equal", 52, 65))
sketch1.addConstraint(Sketcher.Constraint("Equal", 64, 66))
sketch1.addConstraint(Sketcher.Constraint("Equal", 65, 68))
sketch1.addConstraint(Sketcher.Constraint("Equal", 66, 69))
sketch1.addConstraint(Sketcher.Constraint("Equal", 69, 71))
sketch1.addConstraint(Sketcher.Constraint("Equal", 71, 73))
sketch1.addConstraint(Sketcher.Constraint("Equal", 73, 75))
sketch1.addConstraint(Sketcher.Constraint("Symmetric", 9, 3, 15, 3, -1, 1))
sketch1.addConstraint(Sketcher.Constraint("Symmetric", 48, 3, 52, 3, -1, 1))
sketch1.addConstraint(Sketcher.Constraint("Symmetric", 51, 3, 55, 3, -1, 1))
sketch1.addConstraint(Sketcher.Constraint("Symmetric", 5, 3, 19, 3, -2))
sketch1.addConstraint(Sketcher.Constraint("Symmetric", 3, 3, 21, 3, -2))
sketch1.addConstraint(Sketcher.Constraint("Symmetric", 31, 3, 37, 3, -2))
sketch1.addConstraint(Sketcher.Constraint("Symmetric", 27, 3, 41, 3, -2))
sketch1.addConstraint(Sketcher.Constraint("Symmetric", 25, 3, 43, 3, -2))
sketch1.addConstraint(Sketcher.Constraint("Symmetric", 47, 3, 53, 3, -2))
sketch1.addConstraint(Sketcher.Constraint("Symmetric", 65, 3, 68, 3, -2))
sketch1.addConstraint(Sketcher.Constraint("Symmetric", 62, 3, 71, 3, -2))
sketch1.addConstraint(Sketcher.Constraint("PointOnObject", 9, 3, -1))
sketch1.addConstraint(Sketcher.Constraint("Perpendicular", 11, 13))
sketch1.addConstraint(Sketcher.Constraint("Parallel", 4, 26))
sketch1.addConstraint(Sketcher.Constraint("Perpendicular", 13, 33))
sketch1.addConstraint(Sketcher.Constraint("Perpendicular", 33, 35))
sketch1.addConstraint(Sketcher.Constraint("Horizontal", 51, 3, 57, 3))
sketch1.addConstraint(Sketcher.Constraint("Horizontal", 37, 3, 65, 3))
sketch1.addConstraint(Sketcher.Constraint("Horizontal", 60, 3, 73, 3))
sketch1.addConstraint(Sketcher.Constraint("Horizontal", 10, 2, 13, 2))
sketch1.addConstraint(Sketcher.Constraint("Horizontal", 32, 2, 35, 2))
sketch1.addConstraint(Sketcher.Constraint("Vertical", 21, 3, 25, 3))
sketch1.addConstraint(Sketcher.Constraint("Vertical", 19, 3, 27, 3))
sketch1.addConstraint(Sketcher.Constraint("Vertical", 17, 3, 29, 3))
sketch1.addConstraint(Sketcher.Constraint("Vertical", 51, 3, 60, 3))
sketch1.addConstraint(Sketcher.Constraint("Vertical", 49, 3, 64, 3))
sketch1.addConstraint(Sketcher.Constraint("Vertical", 48, 3, 65, 3))
sketch1.addConstraint(Sketcher.Constraint("Vertical", 64, 3, 66, 3))
sketch1.addConstraint(Sketcher.Constraint("Vertical", 12, 2, 33, 2))
sketch1.addConstraint(Sketcher.Constraint("Vertical", 11, 2, 34, 2))
sketch1.addConstraint(Sketcher.Constraint("Equal", 2, 22))
sketch1.addConstraint(Sketcher.Constraint("Equal", 16, 30))
sketch1.addConstraint(Sketcher.Constraint("Equal", 14, 32))
sketch1.addConstraint(Sketcher.Constraint("Radius", 3, Q("1 mm")))
sketch1.addConstraint(Sketcher.Constraint("Radius", 48, Q("8 mm")))
sketch1.addConstraint(Sketcher.Constraint("Radius", 9, Q("5.5 mm")))
sketch1.addConstraint(Sketcher.Constraint("DistanceX", 12, 1, 12, 2, Q("486 mm")))
sketch1.addConstraint(Sketcher.Constraint("DistanceY", 1, 2, 1, 1, Q("687 mm")))
sketch1.addConstraint(Sketcher.Constraint("DistanceY", 8, 1, 8, 2, Q("4 mm")))
sketch1.addConstraint(Sketcher.Constraint("DistanceY", 10, 2, 10, 1, Q("11 mm")))
sketch1.addConstraint(Sketcher.Constraint("Angle", 4, Q("-60 deg")))
sketch1.addConstraint(Sketcher.Constraint("DistanceY", 44, 1, 44, 2, Q("6.4 mm")))
sketch1.addConstraint(Sketcher.Constraint("DistanceX", 9, 3, -1, 1, Q("250 mm")))
sketch1.addConstraint(Sketcher.Constraint("DistanceY", -1, 1, 27, 3, Q("714 mm")))
sketch1.addConstraint(Sketcher.Constraint("DistanceX", 45, 3, -1, 1, Q("228 mm")))
sketch1.addConstraint(Sketcher.Constraint("DistanceX", 48, 3, -1, 1, Q("210 mm")))
sketch1.addConstraint(Sketcher.Constraint("DistanceX", 0, 2, -1, 1, Q("275 mm")))
sketch1.addConstraint(Sketcher.Constraint("DistanceX", 0, 2, 0, 1, Q("0.9226 mm")))
pad1 = body.newObject("PartDesign::Pad", "Pad")
pad1.Profile = sketch1
pad1.Length = 2.5
pad1.Reversed = True

doc.recompute()
